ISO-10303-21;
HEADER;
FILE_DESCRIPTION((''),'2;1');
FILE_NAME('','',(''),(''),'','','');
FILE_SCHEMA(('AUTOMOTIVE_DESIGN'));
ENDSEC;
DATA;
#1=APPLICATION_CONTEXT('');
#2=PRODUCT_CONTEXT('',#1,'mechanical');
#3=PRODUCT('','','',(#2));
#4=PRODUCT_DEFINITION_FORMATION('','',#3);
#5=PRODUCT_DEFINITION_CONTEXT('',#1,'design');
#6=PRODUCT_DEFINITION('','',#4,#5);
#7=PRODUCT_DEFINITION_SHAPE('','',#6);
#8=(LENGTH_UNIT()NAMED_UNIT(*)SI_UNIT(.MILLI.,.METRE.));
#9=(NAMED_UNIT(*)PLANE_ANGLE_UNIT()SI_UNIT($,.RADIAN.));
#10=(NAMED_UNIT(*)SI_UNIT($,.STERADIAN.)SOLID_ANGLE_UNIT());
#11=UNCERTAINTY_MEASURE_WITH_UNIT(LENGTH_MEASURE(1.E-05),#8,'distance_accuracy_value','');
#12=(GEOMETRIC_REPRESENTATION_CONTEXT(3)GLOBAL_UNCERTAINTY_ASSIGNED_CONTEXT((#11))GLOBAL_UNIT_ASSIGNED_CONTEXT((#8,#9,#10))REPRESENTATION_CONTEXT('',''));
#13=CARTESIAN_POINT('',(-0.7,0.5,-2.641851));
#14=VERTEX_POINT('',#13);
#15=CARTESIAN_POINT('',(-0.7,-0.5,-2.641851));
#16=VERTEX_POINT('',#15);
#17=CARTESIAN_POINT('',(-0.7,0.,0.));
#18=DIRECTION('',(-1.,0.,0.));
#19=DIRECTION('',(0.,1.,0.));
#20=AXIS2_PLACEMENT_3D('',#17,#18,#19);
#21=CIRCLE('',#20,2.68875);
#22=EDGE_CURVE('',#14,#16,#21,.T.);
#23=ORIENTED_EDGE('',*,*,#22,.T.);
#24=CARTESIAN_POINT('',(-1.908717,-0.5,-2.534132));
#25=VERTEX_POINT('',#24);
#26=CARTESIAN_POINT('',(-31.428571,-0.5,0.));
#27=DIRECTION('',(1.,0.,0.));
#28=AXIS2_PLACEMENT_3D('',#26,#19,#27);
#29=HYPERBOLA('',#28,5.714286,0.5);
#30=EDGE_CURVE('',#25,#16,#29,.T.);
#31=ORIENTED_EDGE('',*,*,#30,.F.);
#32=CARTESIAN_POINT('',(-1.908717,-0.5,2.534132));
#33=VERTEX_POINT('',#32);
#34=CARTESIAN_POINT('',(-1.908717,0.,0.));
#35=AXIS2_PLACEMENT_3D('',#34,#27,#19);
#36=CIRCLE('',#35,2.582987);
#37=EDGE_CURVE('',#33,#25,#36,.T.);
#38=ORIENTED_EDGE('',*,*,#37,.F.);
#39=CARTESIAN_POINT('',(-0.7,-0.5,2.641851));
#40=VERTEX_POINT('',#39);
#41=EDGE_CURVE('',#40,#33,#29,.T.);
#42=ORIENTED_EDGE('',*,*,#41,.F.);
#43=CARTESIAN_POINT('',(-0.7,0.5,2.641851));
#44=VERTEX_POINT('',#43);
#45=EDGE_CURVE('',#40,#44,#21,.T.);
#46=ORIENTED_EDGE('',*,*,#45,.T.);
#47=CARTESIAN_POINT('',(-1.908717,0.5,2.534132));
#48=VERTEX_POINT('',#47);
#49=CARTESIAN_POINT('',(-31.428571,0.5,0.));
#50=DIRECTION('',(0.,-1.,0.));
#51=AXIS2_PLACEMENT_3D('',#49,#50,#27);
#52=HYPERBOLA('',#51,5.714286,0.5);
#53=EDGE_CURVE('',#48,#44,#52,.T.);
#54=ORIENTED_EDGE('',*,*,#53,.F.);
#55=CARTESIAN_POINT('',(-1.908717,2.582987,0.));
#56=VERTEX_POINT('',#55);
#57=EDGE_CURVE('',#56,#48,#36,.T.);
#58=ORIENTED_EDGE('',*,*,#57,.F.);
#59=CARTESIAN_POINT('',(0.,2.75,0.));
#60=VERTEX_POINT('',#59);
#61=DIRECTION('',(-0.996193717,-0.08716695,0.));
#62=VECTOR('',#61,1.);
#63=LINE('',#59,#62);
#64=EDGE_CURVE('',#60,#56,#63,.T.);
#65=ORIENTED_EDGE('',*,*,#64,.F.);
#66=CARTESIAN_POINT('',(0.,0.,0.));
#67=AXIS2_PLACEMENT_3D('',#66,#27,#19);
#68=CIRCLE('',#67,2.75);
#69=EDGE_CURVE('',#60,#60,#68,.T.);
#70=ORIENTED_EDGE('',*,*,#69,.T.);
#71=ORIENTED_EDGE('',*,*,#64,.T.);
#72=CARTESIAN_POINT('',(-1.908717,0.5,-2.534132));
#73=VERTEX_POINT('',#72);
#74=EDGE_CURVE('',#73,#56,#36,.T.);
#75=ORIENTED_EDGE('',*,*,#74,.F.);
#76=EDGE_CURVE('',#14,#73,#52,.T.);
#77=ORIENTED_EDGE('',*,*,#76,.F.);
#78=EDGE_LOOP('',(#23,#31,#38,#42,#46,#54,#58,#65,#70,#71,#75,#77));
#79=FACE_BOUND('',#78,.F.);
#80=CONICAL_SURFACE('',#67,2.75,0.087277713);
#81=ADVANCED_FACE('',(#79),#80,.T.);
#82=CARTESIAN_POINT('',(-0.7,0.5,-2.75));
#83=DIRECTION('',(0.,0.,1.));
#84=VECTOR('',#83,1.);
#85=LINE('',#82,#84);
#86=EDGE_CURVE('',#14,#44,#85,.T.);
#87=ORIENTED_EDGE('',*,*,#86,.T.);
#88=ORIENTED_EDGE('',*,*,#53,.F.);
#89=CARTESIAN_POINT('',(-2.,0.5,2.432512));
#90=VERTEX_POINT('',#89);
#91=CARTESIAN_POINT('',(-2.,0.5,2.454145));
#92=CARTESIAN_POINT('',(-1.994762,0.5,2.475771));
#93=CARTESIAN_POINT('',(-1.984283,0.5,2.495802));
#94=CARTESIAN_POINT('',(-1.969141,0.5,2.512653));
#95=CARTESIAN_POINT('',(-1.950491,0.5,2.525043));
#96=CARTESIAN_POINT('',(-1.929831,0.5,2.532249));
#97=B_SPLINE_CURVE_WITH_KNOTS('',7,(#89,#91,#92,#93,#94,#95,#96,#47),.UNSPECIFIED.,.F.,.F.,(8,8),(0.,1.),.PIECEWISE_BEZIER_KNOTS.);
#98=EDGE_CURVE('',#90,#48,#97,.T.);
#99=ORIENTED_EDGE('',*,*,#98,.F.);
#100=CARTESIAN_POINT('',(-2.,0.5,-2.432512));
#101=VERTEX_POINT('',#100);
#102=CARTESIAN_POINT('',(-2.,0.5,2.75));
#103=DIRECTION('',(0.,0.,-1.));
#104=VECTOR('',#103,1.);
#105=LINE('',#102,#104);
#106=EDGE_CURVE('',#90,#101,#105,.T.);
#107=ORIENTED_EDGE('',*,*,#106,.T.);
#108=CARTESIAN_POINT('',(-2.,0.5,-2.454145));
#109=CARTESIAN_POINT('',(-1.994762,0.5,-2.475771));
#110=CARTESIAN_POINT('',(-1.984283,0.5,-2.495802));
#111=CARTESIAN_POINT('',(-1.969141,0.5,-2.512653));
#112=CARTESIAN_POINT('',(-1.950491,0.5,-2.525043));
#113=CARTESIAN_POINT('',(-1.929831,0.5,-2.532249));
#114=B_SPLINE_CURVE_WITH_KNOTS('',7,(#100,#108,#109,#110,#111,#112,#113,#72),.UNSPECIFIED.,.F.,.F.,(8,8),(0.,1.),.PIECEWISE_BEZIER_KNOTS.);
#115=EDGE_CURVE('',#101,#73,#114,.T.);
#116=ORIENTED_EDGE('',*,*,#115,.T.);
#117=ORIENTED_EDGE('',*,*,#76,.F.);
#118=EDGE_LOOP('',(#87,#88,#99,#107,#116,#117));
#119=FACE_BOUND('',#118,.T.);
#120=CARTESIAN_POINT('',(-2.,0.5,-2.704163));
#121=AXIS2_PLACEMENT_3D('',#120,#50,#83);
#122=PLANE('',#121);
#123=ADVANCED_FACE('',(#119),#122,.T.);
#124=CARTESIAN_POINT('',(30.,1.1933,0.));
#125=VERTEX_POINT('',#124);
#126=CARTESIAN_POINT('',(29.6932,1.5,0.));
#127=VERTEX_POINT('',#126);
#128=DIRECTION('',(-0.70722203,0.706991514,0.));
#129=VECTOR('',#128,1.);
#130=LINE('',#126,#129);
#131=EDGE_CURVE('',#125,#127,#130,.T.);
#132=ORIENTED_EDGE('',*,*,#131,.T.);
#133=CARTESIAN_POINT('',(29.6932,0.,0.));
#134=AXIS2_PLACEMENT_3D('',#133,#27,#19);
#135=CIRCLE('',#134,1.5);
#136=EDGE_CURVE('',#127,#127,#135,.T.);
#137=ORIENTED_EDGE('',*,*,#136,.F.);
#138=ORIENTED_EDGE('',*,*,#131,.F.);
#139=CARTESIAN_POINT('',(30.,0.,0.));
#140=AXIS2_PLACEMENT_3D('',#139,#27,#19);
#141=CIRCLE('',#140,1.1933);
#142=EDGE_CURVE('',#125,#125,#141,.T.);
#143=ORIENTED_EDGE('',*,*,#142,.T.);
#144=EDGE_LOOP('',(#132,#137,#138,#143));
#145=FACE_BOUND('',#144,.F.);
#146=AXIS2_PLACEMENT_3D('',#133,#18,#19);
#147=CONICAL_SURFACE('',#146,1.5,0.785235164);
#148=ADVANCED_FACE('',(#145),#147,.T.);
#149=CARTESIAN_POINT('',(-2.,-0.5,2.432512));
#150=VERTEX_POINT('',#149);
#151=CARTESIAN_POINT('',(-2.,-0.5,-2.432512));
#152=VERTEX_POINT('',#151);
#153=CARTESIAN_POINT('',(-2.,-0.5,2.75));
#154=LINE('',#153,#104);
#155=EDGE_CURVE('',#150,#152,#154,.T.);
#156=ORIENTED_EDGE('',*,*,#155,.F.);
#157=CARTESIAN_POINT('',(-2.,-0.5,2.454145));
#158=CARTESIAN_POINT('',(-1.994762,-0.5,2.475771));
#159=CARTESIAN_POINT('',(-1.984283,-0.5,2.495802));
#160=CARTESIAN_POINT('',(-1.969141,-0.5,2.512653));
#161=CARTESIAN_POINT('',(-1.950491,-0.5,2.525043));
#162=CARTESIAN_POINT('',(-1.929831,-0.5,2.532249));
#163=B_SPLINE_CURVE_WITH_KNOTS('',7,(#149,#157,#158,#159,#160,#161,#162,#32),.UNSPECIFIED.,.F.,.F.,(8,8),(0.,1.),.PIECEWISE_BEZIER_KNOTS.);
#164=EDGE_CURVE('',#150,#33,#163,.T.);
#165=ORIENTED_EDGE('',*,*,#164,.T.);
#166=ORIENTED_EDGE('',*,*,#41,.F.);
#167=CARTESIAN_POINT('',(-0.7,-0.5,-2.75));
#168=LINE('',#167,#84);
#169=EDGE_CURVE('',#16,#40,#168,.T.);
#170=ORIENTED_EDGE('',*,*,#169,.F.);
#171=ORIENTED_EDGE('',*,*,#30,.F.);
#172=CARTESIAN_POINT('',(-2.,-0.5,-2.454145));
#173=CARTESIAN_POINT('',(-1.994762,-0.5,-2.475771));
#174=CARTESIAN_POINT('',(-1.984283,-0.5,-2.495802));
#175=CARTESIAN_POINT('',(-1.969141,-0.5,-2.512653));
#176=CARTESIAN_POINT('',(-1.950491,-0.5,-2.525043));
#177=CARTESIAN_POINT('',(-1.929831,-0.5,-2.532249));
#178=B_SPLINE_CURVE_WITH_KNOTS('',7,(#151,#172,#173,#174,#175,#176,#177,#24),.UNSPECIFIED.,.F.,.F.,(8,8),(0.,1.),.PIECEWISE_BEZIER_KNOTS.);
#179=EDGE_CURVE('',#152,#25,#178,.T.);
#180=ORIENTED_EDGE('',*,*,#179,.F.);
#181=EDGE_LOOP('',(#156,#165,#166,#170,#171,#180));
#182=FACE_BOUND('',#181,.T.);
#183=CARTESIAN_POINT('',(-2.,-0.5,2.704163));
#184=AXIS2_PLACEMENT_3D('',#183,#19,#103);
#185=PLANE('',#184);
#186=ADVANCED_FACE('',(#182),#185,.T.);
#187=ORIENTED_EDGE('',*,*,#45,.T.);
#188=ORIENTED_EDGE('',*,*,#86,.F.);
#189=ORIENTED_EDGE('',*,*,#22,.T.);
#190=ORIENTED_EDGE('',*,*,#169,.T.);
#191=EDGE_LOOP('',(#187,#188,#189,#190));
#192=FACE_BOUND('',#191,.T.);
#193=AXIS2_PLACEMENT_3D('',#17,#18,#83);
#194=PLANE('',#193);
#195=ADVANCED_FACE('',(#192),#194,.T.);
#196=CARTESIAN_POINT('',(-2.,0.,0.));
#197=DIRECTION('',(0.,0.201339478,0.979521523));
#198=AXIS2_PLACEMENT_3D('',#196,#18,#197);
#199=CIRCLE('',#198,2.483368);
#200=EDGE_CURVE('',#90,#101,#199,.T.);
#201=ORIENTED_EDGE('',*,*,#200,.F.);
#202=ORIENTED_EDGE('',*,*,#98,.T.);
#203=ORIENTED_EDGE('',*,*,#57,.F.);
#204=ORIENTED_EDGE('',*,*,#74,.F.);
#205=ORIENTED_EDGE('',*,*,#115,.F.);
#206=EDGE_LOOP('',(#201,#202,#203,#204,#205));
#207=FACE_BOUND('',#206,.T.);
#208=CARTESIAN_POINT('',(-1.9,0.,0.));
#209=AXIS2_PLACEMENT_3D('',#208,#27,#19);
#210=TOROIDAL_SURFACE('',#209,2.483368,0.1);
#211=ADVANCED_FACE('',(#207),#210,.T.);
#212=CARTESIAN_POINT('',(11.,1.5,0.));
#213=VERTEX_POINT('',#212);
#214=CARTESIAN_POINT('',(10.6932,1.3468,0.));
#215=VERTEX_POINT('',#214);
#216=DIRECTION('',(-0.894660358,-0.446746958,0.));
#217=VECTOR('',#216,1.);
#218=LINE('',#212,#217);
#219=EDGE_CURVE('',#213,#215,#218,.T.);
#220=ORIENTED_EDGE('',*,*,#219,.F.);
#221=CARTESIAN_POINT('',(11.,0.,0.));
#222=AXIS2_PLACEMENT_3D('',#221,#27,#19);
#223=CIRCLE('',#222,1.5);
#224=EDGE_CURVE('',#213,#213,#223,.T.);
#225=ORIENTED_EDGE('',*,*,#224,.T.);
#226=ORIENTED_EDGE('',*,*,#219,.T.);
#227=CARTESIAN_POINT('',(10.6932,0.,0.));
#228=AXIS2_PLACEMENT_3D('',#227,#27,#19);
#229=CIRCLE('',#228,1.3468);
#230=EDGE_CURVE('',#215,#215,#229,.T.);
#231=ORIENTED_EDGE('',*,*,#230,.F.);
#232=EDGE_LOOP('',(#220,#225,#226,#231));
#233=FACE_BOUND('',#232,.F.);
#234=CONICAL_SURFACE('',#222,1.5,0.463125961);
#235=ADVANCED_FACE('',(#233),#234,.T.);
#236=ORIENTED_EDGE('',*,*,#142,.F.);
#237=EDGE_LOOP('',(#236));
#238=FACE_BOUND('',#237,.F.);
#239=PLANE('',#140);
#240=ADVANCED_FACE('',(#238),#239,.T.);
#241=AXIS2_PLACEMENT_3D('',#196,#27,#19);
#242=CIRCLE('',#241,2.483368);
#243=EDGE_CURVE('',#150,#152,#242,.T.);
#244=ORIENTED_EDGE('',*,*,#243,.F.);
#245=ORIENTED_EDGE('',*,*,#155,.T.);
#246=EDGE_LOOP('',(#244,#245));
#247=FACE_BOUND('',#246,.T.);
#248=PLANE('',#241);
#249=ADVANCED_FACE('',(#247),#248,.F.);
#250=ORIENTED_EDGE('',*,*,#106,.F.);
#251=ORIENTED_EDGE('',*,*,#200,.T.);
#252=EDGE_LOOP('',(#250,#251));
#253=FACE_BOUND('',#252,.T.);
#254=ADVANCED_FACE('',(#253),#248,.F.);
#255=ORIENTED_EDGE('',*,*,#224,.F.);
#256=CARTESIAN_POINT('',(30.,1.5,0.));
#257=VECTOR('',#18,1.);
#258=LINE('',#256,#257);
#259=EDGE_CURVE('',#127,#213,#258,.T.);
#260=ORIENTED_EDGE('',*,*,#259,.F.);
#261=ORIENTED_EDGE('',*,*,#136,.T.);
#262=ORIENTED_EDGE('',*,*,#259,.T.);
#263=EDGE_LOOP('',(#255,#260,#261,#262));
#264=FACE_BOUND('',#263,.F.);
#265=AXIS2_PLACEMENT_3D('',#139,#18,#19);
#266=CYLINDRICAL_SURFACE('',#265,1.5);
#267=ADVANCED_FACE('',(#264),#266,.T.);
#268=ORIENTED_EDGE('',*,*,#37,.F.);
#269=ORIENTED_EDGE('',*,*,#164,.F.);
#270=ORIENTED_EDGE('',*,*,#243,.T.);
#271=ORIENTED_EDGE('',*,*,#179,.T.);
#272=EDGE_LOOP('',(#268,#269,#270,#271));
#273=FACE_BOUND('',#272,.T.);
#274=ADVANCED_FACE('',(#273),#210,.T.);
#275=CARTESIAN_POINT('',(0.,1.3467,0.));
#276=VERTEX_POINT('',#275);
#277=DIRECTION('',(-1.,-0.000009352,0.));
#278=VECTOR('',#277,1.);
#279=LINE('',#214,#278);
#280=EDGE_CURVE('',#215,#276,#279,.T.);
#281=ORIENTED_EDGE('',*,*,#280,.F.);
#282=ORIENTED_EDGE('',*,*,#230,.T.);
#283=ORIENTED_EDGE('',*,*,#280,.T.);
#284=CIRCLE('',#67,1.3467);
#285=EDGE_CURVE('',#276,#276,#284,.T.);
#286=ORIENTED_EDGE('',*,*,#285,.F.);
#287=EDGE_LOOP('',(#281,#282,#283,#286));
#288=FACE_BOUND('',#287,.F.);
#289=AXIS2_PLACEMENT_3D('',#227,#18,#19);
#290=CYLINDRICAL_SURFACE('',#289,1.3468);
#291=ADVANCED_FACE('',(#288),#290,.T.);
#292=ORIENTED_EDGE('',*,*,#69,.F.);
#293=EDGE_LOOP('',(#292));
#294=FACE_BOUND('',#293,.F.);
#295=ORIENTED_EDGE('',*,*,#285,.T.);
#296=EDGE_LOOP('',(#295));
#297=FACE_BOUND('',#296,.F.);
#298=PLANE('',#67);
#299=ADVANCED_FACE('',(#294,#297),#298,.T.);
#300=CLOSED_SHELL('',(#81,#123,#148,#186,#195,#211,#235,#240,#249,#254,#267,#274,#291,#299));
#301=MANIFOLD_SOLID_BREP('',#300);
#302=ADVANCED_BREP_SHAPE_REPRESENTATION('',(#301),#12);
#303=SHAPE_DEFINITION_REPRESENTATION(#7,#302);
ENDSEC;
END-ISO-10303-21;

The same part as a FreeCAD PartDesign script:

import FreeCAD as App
import Part
import Sketcher
Q = App.Units.Quantity


def edges_at(feature, points):
    """Names of the edges that pass closest to the given points."""
    edges = feature.Shape.Edges
    near = lambda p: min(range(len(edges)), key=lambda i: edges[i].distToShape(Part.Vertex(*p))[0])
    return sorted({f"Edge{near(p) + 1}" for p in points})


def add_polygon(sketch, points):
    """Adds a closed chain of lines whose ends are joined by coincident constraints."""
    first, n = sketch.GeometryCount, len(points)
    for a, b in zip(points, points[1:] + points[:1]):
        sketch.addGeometry(Part.LineSegment(App.Vector(*a, 0), App.Vector(*b, 0)), False)
    for i in range(n):
        sketch.addConstraint(Sketcher.Constraint("Coincident", first + i, 2, first + (i + 1) % n, 1))

doc = App.newDocument("Part")
params = doc.addObject("Spreadsheet::Sheet", "Params")
for row, (alias, value) in enumerate([
    ("sketch1_width", "19 mm"),
    ("sketch1_height", "1.5 mm"),
    ("revolution_angle", "360 deg"),
    ("fillet_radius", "0.1 mm"),
    ("sketch2_width", "1 mm"),
    ("sketch2_height", "5.5 mm"),
    ("pocket1_length", "1.3 mm"),
    ("chamfer_size", "0.3067 mm"),
    ("chamfer_size2", "0.3068 mm"),
], start=1):
    params.set(f"A{row}", alias)
    params.set(f"B{row}", "=" + value)
    params.setAlias(f"B{row}", alias)

body = doc.addObject("PartDesign::Body", "Body")

# Sketch on XY plane
sketch1 = body.newObject("Sketcher::SketchObject", "Sketch")
sketch1.AttachmentSupport = (doc.getObject("XY_Plane"), [""])
sketch1.MapMode = "FlatFace"
add_polygon(sketch1, [(-2, 2.575), (-2, 0), (30, 0), (30, 1.5), (11, 1.5), (10.6932, 1.3468), (0, 1.3467), (0, 2.75)])  # lines 0-7
sketch1.addConstraint([
    Sketcher.Constraint("Vertical", 0),
    Sketcher.Constraint("Horizontal", 1),
    Sketcher.Constraint("Vertical", 2),
    Sketcher.Constraint("Horizontal", 3),
    Sketcher.Constraint("Horizontal", 5),
    Sketcher.Constraint("Vertical", 6),
    Sketcher.Constraint("PointOnObject", 0, 2, -1),
    Sketcher.Constraint("PointOnObject", 5, 2, -2),
    Sketcher.Constraint("DistanceX", 3, 2, 3, 1, 19.0),
    Sketcher.Constraint("DistanceX", 0, 2, -1, 1, 2.0),
    Sketcher.Constraint("DistanceX", -1, 1, 1, 2, 30.0),
    Sketcher.Constraint("Angle", 7, Q("-174.9994 deg")),
    Sketcher.Constraint("DistanceY", 2, 1, 2, 2, 1.5),
    Sketcher.Constraint("DistanceX", 4, 2, 3, 2, 0.3068),
    Sketcher.Constraint("DistanceY", 0, 2, 0, 1, 2.575),
    Sketcher.Constraint("Distance", 4, 0.343),
])
sketch1.setExpression("Constraints[16]", "Params.sketch1_width")
sketch1.setExpression("Constraints[20]", "Params.sketch1_height")
revolution = body.newObject("PartDesign::Revolution", "Revolution")
revolution.Profile = sketch1
revolution.ReferenceAxis = (sketch1, ["H_Axis"])
revolution.setExpression("Angle", "Params.revolution_angle")
doc.recompute()

fillet = body.newObject("PartDesign::Fillet", "Fillet")
fillet.Base = (revolution, edges_at(revolution, [(-2, -2.575, 0)]))
fillet.setExpression("Radius", "Params.fillet_radius")

# Sketch on YZ plane
sketch2 = body.newObject("Sketcher::SketchObject", "Sketch001")
sketch2.AttachmentSupport = (doc.getObject("YZ_Plane"), [""])
sketch2.MapMode = "FlatFace"
sketch2.AttachmentOffset = App.Placement(App.Vector(0, 0, -2), App.Rotation())
add_polygon(sketch2, [(-0.5, 2.75), (0.5, 2.75), (0.5, -2.75), (-0.5, -2.75)])  # lines 0-3
sketch2.addConstraint([
    Sketcher.Constraint("Horizontal", 0),
    Sketcher.Constraint("Vertical", 1),
    Sketcher.Constraint("Horizontal", 2),
    Sketcher.Constraint("Vertical", 3),
    Sketcher.Constraint("Symmetric", 0, 2, 2, 2, -1, 1),
    Sketcher.Constraint("DistanceX", 0, 1, 0, 2, 1.0),
    Sketcher.Constraint("DistanceY", 1, 2, 1, 1, 5.5),
])
sketch2.setExpression("Constraints[9]", "Params.sketch2_width")
sketch2.setExpression("Constraints[10]", "Params.sketch2_height")
pocket1 = body.newObject("PartDesign::Pocket", "Pocket")
pocket1.Profile = sketch2
pocket1.setExpression("Length", "Params.pocket1_length")
pocket1.Reversed = True
doc.recompute()

chamfer = body.newObject("PartDesign::Chamfer", "Chamfer")
chamfer.Base = (pocket1, edges_at(pocket1, [(30, -1.5, 0)]))
chamfer.ChamferType = "Two distances"
chamfer.setExpression("Size", "Params.chamfer_size")
chamfer.setExpression("Size2", "Params.chamfer_size2")

doc.recompute()
